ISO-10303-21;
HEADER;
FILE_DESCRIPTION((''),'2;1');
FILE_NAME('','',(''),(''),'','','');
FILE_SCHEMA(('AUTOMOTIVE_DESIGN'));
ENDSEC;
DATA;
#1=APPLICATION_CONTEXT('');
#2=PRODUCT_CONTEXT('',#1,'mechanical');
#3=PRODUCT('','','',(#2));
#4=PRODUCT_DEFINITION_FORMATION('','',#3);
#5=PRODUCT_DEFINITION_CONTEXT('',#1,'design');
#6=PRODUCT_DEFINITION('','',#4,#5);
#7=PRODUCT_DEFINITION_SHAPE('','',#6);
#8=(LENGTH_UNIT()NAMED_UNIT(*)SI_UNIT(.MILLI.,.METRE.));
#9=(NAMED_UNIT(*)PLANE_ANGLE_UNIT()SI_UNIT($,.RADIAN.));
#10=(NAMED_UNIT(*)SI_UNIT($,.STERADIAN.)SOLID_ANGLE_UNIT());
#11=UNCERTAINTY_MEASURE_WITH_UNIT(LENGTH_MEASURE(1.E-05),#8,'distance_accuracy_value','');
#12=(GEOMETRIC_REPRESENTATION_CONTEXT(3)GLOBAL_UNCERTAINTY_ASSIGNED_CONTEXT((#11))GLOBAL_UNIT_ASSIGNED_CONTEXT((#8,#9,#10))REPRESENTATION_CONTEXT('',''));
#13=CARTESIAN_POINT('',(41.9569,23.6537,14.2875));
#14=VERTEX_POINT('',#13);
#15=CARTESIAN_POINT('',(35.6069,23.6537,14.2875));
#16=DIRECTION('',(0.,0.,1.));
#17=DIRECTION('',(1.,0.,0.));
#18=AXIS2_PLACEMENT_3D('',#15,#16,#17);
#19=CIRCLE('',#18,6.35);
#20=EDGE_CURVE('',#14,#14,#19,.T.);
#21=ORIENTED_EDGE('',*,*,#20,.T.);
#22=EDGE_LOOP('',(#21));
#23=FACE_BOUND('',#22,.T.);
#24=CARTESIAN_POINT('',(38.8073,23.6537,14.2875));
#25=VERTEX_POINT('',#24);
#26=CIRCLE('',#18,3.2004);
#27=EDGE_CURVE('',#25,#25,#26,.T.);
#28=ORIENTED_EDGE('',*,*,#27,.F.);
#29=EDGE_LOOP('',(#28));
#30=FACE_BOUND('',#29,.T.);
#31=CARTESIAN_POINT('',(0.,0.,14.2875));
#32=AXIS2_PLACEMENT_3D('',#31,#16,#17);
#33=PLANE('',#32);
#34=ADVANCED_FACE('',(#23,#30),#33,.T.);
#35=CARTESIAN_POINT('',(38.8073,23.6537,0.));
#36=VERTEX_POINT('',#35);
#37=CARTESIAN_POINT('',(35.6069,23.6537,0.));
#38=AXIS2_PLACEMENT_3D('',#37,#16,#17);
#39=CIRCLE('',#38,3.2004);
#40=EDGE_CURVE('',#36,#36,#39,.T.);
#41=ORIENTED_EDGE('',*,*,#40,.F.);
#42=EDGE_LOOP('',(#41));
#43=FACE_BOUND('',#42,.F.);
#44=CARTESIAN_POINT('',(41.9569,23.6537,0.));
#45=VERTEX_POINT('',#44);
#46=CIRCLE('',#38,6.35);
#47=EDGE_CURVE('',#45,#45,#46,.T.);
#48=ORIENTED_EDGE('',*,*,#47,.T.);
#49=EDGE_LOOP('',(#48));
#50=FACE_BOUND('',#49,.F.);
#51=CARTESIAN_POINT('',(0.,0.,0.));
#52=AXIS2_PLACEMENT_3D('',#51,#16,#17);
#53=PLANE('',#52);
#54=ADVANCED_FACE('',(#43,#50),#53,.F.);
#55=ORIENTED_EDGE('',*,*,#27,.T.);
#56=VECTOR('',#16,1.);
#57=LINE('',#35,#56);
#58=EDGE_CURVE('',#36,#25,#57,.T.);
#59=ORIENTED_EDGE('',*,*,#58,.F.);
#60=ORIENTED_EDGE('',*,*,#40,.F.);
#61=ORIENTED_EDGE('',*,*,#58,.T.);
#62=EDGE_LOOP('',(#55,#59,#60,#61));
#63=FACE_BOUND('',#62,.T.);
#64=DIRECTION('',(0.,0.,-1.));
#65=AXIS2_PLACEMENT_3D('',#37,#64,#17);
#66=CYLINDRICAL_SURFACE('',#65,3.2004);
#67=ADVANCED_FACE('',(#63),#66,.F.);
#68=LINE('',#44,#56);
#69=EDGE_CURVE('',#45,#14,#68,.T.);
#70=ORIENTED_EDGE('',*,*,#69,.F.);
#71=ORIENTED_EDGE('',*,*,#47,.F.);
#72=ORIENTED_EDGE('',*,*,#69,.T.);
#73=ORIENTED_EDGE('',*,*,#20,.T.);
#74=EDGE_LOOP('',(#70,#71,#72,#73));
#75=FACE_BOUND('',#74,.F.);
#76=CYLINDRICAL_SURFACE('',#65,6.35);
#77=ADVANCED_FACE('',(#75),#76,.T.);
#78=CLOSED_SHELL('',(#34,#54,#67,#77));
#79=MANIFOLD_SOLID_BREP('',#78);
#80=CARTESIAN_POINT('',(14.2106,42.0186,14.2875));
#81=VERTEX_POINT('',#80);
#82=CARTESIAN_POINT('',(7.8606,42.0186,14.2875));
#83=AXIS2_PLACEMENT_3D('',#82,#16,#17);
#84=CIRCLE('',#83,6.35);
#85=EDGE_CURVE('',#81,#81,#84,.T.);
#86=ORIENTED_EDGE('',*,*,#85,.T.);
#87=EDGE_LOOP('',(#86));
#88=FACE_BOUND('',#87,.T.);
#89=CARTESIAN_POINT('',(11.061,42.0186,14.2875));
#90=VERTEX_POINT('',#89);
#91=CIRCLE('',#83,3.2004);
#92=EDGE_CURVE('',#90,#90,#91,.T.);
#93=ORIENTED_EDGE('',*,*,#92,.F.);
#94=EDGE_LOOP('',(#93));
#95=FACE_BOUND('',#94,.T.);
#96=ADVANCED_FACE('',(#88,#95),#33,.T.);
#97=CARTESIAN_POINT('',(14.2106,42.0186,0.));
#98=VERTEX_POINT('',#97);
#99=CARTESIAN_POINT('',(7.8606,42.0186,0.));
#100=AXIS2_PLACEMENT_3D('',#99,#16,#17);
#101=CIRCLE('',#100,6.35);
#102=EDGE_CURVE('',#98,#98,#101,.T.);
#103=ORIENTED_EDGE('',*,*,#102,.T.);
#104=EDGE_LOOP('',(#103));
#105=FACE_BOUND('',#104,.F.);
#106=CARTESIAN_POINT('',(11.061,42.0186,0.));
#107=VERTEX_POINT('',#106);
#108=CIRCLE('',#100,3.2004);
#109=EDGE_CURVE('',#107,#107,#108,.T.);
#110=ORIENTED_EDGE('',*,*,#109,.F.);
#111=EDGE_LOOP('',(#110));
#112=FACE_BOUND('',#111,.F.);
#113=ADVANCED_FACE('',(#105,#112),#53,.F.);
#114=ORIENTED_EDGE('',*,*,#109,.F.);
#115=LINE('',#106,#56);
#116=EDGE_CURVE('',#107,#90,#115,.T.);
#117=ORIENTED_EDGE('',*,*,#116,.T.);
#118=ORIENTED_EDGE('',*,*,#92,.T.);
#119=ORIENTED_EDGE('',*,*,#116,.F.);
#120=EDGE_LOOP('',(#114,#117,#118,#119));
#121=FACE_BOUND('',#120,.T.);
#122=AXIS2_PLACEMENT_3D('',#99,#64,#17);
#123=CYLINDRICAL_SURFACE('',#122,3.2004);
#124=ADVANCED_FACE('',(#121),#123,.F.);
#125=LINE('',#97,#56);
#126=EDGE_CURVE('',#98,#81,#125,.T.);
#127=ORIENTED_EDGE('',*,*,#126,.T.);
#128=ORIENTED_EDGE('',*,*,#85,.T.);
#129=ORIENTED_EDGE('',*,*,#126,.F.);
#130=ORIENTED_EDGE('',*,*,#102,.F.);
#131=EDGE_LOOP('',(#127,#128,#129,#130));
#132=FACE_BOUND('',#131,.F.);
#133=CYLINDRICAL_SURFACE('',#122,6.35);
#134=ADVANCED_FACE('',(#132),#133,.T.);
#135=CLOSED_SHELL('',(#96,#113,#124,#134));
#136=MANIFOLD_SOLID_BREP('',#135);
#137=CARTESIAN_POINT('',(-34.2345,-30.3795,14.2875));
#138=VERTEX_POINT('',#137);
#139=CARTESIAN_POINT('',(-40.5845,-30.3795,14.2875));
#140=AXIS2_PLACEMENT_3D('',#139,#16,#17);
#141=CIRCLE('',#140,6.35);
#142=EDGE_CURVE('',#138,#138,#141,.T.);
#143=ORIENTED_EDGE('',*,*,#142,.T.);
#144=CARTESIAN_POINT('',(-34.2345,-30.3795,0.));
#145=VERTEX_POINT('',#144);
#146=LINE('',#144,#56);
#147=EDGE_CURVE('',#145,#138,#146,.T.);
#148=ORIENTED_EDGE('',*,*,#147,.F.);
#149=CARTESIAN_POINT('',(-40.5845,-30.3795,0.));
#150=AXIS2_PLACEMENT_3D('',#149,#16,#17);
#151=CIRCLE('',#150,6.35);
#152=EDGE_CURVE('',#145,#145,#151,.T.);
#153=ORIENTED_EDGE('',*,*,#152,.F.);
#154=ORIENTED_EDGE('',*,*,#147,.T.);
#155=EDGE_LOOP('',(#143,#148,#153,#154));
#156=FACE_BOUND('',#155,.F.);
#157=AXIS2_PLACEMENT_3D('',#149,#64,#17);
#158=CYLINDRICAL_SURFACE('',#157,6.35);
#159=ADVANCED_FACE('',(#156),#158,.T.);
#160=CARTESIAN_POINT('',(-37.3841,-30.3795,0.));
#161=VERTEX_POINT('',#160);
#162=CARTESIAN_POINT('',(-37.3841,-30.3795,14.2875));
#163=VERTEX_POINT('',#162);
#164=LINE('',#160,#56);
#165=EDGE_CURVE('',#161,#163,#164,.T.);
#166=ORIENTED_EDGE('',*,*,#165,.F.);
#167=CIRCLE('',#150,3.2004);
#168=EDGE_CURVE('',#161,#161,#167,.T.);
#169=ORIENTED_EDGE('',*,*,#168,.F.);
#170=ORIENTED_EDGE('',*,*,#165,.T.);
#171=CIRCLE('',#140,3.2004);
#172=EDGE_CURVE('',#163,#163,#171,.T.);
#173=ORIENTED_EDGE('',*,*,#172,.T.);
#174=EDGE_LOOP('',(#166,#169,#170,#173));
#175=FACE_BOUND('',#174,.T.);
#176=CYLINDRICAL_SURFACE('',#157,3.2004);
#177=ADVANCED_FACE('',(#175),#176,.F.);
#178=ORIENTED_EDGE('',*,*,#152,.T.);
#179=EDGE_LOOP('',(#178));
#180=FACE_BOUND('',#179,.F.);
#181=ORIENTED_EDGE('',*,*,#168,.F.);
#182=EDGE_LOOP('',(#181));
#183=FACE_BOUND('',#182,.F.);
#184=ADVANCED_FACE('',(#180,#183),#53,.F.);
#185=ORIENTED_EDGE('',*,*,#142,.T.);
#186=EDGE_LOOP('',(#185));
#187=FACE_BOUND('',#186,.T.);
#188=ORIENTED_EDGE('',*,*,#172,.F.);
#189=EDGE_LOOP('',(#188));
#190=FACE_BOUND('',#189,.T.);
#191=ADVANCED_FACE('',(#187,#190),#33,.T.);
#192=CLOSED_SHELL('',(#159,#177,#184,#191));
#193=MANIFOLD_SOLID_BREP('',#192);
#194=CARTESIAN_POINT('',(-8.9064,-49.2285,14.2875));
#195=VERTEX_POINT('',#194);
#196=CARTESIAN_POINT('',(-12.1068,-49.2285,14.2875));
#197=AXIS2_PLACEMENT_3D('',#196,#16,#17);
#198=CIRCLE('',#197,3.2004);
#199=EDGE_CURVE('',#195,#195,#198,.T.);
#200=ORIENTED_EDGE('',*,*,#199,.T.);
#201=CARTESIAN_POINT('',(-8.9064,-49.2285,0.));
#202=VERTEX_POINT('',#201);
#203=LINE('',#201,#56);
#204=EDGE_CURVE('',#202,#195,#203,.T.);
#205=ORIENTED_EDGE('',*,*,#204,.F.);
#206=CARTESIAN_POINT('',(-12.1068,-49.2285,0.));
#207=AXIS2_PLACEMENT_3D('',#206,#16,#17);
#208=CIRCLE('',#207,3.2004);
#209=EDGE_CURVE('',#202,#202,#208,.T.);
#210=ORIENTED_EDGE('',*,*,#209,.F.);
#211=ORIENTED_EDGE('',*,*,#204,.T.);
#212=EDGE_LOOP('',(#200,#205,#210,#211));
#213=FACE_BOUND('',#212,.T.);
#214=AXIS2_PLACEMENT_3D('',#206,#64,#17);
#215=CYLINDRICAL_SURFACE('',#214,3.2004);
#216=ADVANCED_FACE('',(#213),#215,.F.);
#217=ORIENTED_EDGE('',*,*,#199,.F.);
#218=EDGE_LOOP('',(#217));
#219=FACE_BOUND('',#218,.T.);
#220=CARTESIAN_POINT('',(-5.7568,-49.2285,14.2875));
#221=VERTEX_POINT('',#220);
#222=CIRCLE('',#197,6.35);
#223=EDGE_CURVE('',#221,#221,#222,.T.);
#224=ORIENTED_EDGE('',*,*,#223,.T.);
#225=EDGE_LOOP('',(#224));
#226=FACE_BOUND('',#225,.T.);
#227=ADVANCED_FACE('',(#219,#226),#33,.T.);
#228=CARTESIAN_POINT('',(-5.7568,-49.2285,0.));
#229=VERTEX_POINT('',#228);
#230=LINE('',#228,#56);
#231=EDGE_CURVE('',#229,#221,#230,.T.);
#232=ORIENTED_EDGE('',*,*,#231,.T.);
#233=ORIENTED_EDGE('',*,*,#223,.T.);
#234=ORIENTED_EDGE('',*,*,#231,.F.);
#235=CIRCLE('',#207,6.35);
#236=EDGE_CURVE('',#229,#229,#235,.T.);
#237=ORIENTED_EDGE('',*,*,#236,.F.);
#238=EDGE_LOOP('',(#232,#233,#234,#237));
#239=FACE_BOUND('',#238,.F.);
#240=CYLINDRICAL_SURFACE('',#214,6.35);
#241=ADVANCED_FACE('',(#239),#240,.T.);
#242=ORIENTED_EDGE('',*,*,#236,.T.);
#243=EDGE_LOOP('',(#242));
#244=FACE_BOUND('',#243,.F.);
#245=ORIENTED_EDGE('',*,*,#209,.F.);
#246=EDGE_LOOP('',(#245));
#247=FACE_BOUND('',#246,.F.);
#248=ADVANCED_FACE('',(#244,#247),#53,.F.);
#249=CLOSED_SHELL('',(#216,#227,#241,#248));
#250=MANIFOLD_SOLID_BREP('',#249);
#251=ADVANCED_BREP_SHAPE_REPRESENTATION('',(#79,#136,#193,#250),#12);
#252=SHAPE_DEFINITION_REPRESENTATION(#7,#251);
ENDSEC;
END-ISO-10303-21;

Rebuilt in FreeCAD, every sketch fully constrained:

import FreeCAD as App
import Part
import Sketcher
Q = App.Units.Quantity

doc = App.newDocument("Part")
body = doc.addObject("PartDesign::Body", "Body")
body.AllowCompound = True

# Sketch on XY plane
sketch1 = body.newObject("Sketcher::SketchObject", "Sketch")
sketch1.AttachmentSupport = (doc.getObject("XY_Plane"), [""])
sketch1.MapMode = "FlatFace"
sketch1.addGeometry(Part.Circle(App.Vector(-12.1, -49.2, 0), App.Vector(0, 0, 1), 6.3), False)
sketch1.addGeometry(Part.Circle(App.Vector(-12.1, -49.2, 0), App.Vector(0, 0, 1), 3.2), False)
sketch1.addGeometry(Part.Circle(App.Vector(-40.6, -30.4, 0), App.Vector(0, 0, 1), 6.3), False)
sketch1.addGeometry(Part.Circle(App.Vector(-40.6, -30.4, 0), App.Vector(0, 0, 1), 3.2), False)
sketch1.addGeometry(Part.Circle(App.Vector(35.6, 23.7, 0), App.Vector(0, 0, 1), 6.3), False)
sketch1.addGeometry(Part.Circle(App.Vector(35.6, 23.7, 0), App.Vector(0, 0, 1), 3.2), False)
sketch1.addGeometry(Part.Circle(App.Vector(7.9, 42, 0), App.Vector(0, 0, 1), 6.3), False)
sketch1.addGeometry(Part.Circle(App.Vector(7.9, 42, 0), App.Vector(0, 0, 1), 3.2), False)
sketch1.addConstraint(Sketcher.Constraint("Coincident", 1, 3, 0, 3))
sketch1.addConstraint(Sketcher.Constraint("Coincident", 3, 3, 2, 3))
sketch1.addConstraint(Sketcher.Constraint("Coincident", 5, 3, 4, 3))
sketch1.addConstraint(Sketcher.Constraint("Coincident", 7, 3, 6, 3))
sketch1.addConstraint(Sketcher.Constraint("Equal", 0, 2))
sketch1.addConstraint(Sketcher.Constraint("Equal", 1, 3))
sketch1.addConstraint(Sketcher.Constraint("Equal", 2, 4))
sketch1.addConstraint(Sketcher.Constraint("Equal", 3, 5))
sketch1.addConstraint(Sketcher.Constraint("Equal", 4, 6))
sketch1.addConstraint(Sketcher.Constraint("Equal", 5, 7))
sketch1.addConstraint(Sketcher.Constraint("Diameter", 0, Q("0.5 in")))
sketch1.addConstraint(Sketcher.Constraint("Diameter", 1, Q("0.252 in")))
sketch1.addConstraint(Sketcher.Constraint("DistanceX", 0, 3, 4, 3, Q("1.8785 in")))
sketch1.addConstraint(Sketcher.Constraint("DistanceY", 2, 3, 4, 3, Q("2.1273 in")))
sketch1.addConstraint(Sketcher.Constraint("DistanceY", 0, 3, 6, 3, Q("3.5924 in")))
sketch1.addConstraint(Sketcher.Constraint("DistanceX", 0, 3, -1, 1, Q("12.1068 mm")))
sketch1.addConstraint(Sketcher.Constraint("DistanceY", 0, 3, -1, 1, Q("49.2285 mm")))
sketch1.addConstraint(Sketcher.Constraint("DistanceX", 2, 3, -1, 1, Q("40.5845 mm")))
sketch1.addConstraint(Sketcher.Constraint("DistanceY", 2, 3, -1, 1, Q("30.3795 mm")))
sketch1.addConstraint(Sketcher.Constraint("DistanceX", -1, 1, 6, 3, Q("7.8606 mm")))
pad1 = body.newObject("PartDesign::Pad", "Pad")
pad1.Profile = sketch1
pad1.Length = Q("0.5625 in")

doc.recompute()
